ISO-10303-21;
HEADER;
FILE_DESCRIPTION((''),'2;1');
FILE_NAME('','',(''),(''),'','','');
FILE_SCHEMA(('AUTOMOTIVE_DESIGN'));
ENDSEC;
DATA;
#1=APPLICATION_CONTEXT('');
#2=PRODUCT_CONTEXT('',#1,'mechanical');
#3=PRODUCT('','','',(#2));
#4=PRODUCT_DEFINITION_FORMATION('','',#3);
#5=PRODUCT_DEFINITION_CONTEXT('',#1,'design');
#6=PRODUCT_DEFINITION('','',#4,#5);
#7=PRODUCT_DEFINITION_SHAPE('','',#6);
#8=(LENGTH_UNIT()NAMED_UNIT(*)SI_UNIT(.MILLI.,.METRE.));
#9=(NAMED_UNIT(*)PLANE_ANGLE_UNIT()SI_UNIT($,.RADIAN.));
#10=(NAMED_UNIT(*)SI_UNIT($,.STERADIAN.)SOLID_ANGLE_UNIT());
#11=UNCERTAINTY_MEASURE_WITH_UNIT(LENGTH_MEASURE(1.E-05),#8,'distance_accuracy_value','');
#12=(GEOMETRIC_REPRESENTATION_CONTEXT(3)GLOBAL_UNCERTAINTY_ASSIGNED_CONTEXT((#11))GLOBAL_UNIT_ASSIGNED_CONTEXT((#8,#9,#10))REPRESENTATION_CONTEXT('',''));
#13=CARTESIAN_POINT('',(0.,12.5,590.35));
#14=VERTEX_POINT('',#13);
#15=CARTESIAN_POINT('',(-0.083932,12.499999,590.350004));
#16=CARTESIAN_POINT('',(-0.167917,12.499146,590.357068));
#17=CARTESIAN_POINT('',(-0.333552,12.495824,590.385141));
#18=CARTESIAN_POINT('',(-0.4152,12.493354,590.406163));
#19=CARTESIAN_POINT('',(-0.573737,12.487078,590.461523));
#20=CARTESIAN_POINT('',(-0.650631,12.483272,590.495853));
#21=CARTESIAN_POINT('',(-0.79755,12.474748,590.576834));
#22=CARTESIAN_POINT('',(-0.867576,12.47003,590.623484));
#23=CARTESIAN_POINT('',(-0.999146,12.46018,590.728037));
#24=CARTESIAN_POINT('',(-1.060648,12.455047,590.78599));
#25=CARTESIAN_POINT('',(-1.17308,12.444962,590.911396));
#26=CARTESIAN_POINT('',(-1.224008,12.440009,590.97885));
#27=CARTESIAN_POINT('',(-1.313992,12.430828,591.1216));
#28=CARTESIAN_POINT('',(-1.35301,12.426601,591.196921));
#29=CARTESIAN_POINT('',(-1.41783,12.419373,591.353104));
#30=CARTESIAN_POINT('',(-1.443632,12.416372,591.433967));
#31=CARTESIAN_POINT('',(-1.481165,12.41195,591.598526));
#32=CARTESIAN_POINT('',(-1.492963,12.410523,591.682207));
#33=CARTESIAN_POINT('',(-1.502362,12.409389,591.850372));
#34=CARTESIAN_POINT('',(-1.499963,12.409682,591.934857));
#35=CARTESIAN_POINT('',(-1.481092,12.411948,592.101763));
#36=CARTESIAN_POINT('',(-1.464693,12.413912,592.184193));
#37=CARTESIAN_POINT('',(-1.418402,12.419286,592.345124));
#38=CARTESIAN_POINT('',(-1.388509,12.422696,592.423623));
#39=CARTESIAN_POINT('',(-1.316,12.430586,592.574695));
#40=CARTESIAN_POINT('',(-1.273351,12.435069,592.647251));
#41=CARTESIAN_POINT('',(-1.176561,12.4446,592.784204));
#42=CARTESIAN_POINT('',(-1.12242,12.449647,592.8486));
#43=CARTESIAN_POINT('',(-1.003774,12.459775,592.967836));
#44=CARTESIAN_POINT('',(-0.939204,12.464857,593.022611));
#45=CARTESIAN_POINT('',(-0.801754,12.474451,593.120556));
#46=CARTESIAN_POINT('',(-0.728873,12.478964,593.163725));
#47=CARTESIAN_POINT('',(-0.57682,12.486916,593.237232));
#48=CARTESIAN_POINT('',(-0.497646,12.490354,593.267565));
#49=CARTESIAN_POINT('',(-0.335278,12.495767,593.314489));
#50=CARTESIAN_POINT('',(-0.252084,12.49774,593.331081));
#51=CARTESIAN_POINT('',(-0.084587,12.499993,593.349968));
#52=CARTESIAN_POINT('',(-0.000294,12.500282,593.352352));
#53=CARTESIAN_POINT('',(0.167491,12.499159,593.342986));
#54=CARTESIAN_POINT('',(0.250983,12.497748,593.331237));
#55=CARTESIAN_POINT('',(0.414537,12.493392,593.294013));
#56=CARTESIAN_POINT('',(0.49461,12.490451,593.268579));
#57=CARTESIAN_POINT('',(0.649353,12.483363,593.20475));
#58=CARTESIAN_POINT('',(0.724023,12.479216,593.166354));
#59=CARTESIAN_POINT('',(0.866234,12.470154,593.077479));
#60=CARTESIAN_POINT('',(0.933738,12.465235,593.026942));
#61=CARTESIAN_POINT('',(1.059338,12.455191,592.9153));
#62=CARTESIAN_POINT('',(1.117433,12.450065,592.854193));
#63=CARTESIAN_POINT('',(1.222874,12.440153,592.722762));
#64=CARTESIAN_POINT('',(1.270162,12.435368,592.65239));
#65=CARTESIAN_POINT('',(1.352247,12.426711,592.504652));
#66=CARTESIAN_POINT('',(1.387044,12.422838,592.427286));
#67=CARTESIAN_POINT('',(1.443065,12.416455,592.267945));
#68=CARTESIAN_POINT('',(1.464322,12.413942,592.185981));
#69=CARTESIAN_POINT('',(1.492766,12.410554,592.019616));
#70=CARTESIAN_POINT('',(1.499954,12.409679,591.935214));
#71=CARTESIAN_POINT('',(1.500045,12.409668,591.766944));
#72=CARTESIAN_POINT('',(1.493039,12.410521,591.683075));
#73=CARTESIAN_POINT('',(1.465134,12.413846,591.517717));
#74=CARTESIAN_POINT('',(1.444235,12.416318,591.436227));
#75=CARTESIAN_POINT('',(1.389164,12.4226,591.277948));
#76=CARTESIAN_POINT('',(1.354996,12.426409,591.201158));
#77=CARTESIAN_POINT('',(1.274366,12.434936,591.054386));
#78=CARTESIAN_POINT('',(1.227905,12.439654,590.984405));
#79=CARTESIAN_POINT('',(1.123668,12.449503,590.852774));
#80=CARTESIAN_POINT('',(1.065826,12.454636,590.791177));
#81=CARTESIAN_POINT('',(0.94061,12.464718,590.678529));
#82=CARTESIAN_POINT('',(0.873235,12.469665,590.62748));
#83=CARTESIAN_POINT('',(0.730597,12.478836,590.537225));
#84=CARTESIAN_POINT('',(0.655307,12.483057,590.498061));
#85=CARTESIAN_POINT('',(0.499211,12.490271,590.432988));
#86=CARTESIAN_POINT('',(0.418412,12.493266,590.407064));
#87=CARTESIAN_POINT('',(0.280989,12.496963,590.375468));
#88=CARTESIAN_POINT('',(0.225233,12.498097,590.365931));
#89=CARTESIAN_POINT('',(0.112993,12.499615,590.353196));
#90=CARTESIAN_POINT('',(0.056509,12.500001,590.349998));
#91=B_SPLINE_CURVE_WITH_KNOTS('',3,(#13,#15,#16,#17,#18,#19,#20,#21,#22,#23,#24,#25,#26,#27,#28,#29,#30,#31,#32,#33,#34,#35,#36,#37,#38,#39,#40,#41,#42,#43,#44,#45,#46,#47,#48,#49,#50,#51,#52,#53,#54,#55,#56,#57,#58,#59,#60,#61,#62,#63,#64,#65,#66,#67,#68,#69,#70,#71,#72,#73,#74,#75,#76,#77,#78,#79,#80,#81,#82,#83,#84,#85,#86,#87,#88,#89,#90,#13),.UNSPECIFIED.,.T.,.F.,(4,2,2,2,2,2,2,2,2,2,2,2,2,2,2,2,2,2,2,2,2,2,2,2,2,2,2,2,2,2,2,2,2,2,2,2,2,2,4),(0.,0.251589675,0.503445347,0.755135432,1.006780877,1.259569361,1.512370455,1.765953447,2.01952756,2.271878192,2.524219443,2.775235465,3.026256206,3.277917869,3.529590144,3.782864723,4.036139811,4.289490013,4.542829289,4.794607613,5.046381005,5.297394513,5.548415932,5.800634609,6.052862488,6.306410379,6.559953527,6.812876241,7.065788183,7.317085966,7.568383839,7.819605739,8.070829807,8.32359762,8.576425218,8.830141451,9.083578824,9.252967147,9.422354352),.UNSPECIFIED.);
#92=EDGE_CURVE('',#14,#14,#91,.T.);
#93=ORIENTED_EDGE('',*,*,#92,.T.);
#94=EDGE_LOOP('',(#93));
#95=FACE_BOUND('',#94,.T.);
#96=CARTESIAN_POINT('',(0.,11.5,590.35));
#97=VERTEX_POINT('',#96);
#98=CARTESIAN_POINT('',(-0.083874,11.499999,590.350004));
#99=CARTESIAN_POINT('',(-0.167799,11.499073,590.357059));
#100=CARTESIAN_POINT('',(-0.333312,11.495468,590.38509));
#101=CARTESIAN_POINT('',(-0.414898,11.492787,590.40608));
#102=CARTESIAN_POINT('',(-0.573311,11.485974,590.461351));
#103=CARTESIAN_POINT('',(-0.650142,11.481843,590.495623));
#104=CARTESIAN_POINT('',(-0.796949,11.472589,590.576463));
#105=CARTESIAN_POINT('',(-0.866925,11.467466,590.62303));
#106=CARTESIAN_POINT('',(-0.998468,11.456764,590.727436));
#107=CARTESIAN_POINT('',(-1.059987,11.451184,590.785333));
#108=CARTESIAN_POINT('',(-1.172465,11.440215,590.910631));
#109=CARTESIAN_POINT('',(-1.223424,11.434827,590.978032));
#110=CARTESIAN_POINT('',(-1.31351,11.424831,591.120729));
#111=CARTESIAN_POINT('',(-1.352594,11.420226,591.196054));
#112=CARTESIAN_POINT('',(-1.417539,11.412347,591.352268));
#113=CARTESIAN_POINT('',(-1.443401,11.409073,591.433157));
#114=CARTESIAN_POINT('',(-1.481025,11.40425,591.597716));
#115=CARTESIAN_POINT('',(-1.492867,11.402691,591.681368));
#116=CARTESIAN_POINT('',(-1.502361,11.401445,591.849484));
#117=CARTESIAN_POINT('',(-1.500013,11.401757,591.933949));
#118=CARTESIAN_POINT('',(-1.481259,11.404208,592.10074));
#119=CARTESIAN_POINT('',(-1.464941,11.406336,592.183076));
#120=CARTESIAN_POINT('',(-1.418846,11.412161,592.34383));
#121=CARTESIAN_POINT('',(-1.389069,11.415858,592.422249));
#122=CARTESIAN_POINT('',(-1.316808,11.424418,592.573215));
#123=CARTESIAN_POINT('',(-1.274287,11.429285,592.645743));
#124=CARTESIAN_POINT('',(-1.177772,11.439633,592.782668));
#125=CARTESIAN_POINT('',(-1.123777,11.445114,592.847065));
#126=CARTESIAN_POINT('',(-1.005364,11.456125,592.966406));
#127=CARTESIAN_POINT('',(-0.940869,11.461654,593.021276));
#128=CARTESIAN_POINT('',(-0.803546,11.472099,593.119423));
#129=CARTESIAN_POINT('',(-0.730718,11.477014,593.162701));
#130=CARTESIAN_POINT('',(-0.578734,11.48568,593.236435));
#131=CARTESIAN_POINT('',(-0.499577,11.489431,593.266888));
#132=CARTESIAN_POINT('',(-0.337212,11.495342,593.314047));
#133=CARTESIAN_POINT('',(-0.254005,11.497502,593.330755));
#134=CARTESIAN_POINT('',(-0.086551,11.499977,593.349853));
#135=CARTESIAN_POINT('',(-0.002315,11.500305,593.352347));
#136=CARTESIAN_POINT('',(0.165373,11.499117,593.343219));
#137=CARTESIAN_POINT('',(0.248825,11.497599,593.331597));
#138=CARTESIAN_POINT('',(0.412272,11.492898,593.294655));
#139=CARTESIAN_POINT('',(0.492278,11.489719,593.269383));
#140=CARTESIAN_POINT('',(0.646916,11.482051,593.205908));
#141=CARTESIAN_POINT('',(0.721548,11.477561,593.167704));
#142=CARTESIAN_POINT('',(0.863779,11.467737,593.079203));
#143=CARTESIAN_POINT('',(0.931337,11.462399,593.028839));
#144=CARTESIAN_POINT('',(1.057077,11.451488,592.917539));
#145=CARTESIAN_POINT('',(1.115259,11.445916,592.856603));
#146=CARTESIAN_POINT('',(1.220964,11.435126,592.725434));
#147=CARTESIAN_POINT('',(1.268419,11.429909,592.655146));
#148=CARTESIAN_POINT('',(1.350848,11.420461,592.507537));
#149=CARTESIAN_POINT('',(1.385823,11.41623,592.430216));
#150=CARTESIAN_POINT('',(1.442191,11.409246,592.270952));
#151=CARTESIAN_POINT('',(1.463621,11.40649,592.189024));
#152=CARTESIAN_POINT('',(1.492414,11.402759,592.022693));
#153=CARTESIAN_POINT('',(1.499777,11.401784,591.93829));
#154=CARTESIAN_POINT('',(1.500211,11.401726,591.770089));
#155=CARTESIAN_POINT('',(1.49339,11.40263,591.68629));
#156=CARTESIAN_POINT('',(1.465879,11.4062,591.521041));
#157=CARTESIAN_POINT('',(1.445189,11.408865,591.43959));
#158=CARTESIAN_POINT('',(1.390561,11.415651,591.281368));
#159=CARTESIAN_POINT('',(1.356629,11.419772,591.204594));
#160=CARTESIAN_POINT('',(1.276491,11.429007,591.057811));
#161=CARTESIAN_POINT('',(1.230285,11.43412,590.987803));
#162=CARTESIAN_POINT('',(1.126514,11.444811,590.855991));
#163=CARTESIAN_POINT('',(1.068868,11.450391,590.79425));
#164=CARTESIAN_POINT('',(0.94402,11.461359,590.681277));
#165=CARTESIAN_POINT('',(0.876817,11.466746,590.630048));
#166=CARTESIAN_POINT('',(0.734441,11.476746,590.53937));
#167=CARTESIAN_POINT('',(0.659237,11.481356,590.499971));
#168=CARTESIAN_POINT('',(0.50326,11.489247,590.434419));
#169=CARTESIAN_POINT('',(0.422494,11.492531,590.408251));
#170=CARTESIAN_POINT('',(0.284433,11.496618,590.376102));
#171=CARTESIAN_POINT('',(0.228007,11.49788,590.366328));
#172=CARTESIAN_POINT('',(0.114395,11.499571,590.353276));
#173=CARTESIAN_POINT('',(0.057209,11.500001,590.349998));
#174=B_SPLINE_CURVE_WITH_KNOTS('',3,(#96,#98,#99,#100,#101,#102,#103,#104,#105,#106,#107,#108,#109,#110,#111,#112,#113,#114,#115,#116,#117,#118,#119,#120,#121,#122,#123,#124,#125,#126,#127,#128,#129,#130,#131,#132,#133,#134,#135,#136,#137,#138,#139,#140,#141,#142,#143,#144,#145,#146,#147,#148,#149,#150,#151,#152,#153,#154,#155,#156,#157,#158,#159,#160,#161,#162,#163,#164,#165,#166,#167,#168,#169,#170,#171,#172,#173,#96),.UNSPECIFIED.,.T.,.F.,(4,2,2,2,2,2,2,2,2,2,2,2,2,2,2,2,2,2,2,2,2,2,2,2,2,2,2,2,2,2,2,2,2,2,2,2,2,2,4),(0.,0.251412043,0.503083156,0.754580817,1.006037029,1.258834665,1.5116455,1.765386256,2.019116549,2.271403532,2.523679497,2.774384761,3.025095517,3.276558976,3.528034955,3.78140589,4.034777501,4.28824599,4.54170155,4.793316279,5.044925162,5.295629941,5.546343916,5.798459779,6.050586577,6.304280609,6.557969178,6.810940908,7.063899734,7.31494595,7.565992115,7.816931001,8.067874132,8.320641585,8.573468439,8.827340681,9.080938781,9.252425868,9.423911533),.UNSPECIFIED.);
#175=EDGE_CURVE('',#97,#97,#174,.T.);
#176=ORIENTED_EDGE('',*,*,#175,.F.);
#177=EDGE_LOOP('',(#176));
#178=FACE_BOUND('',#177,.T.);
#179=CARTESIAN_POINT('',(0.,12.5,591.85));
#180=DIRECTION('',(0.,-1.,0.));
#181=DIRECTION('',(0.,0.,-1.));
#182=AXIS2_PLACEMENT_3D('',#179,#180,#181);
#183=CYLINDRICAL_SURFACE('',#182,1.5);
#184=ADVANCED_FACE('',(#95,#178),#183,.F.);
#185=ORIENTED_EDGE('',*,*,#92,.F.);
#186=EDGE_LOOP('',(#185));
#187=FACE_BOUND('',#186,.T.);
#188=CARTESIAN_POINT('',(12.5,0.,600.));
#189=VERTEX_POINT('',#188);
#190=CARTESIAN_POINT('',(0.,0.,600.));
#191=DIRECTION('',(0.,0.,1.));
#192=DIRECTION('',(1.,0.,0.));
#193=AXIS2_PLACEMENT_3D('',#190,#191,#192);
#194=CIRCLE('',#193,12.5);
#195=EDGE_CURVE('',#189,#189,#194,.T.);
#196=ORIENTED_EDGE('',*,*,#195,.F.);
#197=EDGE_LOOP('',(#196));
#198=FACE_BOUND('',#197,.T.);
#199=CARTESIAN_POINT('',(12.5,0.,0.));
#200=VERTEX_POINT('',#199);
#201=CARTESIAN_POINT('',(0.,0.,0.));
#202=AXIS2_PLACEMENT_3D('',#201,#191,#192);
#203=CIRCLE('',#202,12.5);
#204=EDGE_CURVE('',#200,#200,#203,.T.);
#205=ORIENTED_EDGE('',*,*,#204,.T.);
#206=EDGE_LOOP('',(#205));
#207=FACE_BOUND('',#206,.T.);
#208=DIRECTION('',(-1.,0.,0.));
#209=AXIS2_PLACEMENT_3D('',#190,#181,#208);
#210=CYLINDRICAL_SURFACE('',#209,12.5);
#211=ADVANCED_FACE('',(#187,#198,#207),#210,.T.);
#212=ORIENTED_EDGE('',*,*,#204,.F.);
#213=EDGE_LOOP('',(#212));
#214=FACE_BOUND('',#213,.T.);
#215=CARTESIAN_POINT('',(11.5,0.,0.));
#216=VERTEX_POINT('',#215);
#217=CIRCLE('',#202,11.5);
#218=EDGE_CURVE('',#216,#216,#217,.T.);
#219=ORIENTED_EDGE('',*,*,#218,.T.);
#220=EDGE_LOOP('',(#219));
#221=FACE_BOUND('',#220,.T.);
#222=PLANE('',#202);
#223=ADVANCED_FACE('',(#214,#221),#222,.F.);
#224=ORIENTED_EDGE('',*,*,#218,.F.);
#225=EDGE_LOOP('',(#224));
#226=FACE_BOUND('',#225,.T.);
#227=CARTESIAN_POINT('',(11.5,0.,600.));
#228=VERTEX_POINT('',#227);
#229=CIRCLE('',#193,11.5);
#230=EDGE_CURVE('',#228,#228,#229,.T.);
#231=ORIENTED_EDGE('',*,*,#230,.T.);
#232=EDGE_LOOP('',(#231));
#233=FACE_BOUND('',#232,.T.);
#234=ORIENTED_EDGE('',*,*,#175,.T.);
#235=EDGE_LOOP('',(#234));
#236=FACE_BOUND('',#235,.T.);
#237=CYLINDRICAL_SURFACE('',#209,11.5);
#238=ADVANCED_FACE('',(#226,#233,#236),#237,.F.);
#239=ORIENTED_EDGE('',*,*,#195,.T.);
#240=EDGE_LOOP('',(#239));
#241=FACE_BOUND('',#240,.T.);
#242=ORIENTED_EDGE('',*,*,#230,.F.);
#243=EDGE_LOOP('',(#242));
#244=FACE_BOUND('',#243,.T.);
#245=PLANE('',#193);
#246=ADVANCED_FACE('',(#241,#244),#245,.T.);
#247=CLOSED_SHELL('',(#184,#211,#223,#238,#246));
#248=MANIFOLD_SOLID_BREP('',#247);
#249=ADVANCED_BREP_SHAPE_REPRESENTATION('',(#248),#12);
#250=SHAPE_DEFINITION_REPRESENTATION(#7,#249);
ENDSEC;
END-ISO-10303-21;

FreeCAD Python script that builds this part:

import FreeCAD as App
import Part
import Sketcher

V = App.Vector
Q = App.Units.Quantity

doc = App.newDocument("Part")
body = doc.addObject("PartDesign::Body", "Body")

# Sketch on XY plane
sketch1 = doc.addObject("Sketcher::SketchObject", "Sketch")
body.addObject(sketch1)
sketch1.AttachmentSupport = (doc.XY_Plane, [""])
sketch1.MapMode = "FlatFace"
sketch1.addGeometry(Part.Circle(V(0, 0, 0), V(0, 0, 1), 12), False)
sketch1.addGeometry(Part.Circle(V(0, 0, 0), V(0, 0, 1), 12), False)
sketch1.addConstraint(Sketcher.Constraint("Coincident", 0, 3, -1, 1))
sketch1.addConstraint(Sketcher.Constraint("Coincident", 1, 3, -1, 1))
sketch1.addConstraint(Sketcher.Constraint("Diameter", 0, Q("25 mm")))
sketch1.addConstraint(Sketcher.Constraint("Diameter", 1, Q("23 mm")))
pad1 = doc.addObject("PartDesign::Pad", "Pad")
body.addObject(pad1)
pad1.Profile = sketch1
pad1.Length = 600

# Sketch on XZ plane
sketch2 = doc.addObject("Sketcher::SketchObject", "Sketch001")
body.addObject(sketch2)
sketch2.AttachmentSupport = (doc.XZ_Plane, [""])
sketch2.MapMode = "FlatFace"
sketch2.addGeometry(Part.Circle(V(0, 591.9, 0), V(0, 0, 1), 1.5), False)
sketch2.addConstraint(Sketcher.Constraint("PointOnObject", 0, 3, -2))
sketch2.addConstraint(Sketcher.Constraint("Diameter", 0, Q("3 mm")))
sketch2.addConstraint(Sketcher.Constraint("DistanceY", -1, 1, 0, 3, Q("591.85 mm")))
pocket1 = doc.addObject("PartDesign::Pocket", "Pocket")
body.addObject(pocket1)
pocket1.Profile = sketch2
pocket1.Type = "ThroughAll"

doc.recompute()
